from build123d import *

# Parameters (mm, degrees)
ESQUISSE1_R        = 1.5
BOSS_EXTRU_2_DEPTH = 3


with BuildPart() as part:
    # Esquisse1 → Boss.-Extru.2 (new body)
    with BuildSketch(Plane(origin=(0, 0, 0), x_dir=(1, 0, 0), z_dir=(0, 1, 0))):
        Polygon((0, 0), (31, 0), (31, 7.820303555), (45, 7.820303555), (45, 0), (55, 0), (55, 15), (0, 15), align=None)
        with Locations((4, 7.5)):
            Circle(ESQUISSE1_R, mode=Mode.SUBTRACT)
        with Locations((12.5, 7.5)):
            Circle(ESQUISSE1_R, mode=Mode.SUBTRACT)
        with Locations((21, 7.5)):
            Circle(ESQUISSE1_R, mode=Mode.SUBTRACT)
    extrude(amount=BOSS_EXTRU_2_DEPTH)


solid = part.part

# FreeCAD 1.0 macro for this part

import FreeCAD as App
import Part
import Sketcher
from FreeCAD import Vector
Q = App.Units.Quantity

doc = App.newDocument("Part")
body = doc.addObject("PartDesign::Body", "Body")

# Sketch on XZ plane
sketch1 = body.newObject("Sketcher::SketchObject", "Sketch")
sketch1.AttachmentSupport = (doc.getObject("XZ_Plane"), [""])
sketch1.MapMode = "FlatFace"
sketch1.addGeometry(Part.LineSegment(Vector(0, 0, 0), Vector(31, 0, 0)), False)
sketch1.addGeometry(Part.LineSegment(Vector(31, 0, 0), Vector(31, -7.8, 0)), False)
sketch1.addGeometry(Part.LineSegment(Vector(31, -7.8, 0), Vector(45, -7.8, 0)), False)
sketch1.addGeometry(Part.LineSegment(Vector(45, -7.8, 0), Vector(45, 0, 0)), False)
sketch1.addGeometry(Part.LineSegment(Vector(45, 0, 0), Vector(55, 0, 0)), False)
sketch1.addGeometry(Part.LineSegment(Vector(55, 0, 0), Vector(55, -15, 0)), False)
sketch1.addGeometry(Part.LineSegment(Vector(55, -15, 0), Vector(0, -15, 0)), False)
sketch1.addGeometry(Part.LineSegment(Vector(0, -15, 0), Vector(0, 0, 0)), False)
sketch1.addGeometry(Part.Circle(Vector(4, -7.5, 0), Vector(0, 0, 1), 1.5), False)
sketch1.addGeometry(Part.Circle(Vector(12.5, -7.5, 0), Vector(0, 0, 1), 1.5), False)
sketch1.addGeometry(Part.Circle(Vector(21, -7.5, 0), Vector(0, 0, 1), 1.5), False)
sketch1.addConstraint(Sketcher.Constraint("Coincident", 0, 2, 1, 1))
sketch1.addConstraint(Sketcher.Constraint("Coincident", 1, 2, 2, 1))
sketch1.addConstraint(Sketcher.Constraint("Coincident", 2, 2, 3, 1))
sketch1.addConstraint(Sketcher.Constraint("Coincident", 3, 2, 4, 1))
sketch1.addConstraint(Sketcher.Constraint("Coincident", 4, 2, 5, 1))
sketch1.addConstraint(Sketcher.Constraint("Coincident", 5, 2, 6, 1))
sketch1.addConstraint(Sketcher.Constraint("Coincident", 6, 2, 7, 1))
sketch1.addConstraint(Sketcher.Constraint("Coincident", 7, 2, 0, 1))
sketch1.addConstraint(Sketcher.Constraint("Horizontal", 0))
sketch1.addConstraint(Sketcher.Constraint("Vertical", 1))
sketch1.addConstraint(Sketcher.Constraint("Horizontal", 2))
sketch1.addConstraint(Sketcher.Constraint("Vertical", 3))
sketch1.addConstraint(Sketcher.Constraint("Horizontal", 4))
sketch1.addConstraint(Sketcher.Constraint("Vertical", 5))
sketch1.addConstraint(Sketcher.Constraint("Horizontal", 6))
sketch1.addConstraint(Sketcher.Constraint("Vertical", 7))
sketch1.addConstraint(Sketcher.Constraint("Coincident", 7, 2, -1, 1))
sketch1.addConstraint(Sketcher.Constraint("Equal", 8, 9))
sketch1.addConstraint(Sketcher.Constraint("Equal", 9, 10))
sketch1.addConstraint(Sketcher.Constraint("PointOnObject", 3, 2, -1))
sketch1.addConstraint(Sketcher.Constraint("Horizontal", 8, 3, 9, 3))
sketch1.addConstraint(Sketcher.Constraint("Horizontal", 9, 3, 10, 3))
sketch1.addConstraint(Sketcher.Constraint("Diameter", 8, Q("3 mm")))
sketch1.addConstraint(Sketcher.Constraint("DistanceX", 0, 1, 0, 2, Q("31 mm")))
sketch1.addConstraint(Sketcher.Constraint("DistanceX", 2, 1, 2, 2, Q("14 mm")))
sketch1.addConstraint(Sketcher.Constraint("DistanceX", 4, 1, 4, 2, Q("10 mm")))
sketch1.addConstraint(Sketcher.Constraint("DistanceY", 5, 2, 5, 1, Q("15 mm")))
sketch1.addConstraint(Sketcher.Constraint("DistanceX", -1, 1, 8, 3, Q("4 mm")))
sketch1.addConstraint(Sketcher.Constraint("DistanceX", -1, 1, 10, 3, Q("21 mm")))
sketch1.addConstraint(Sketcher.Constraint("DistanceY", 8, 3, -1, 1, Q("7.5 mm")))
sketch1.addConstraint(Sketcher.Constraint("DistanceX", -1, 1, 9, 3, Q("12.5 mm")))
sketch1.addConstraint(Sketcher.Constraint("DistanceY", 1, 2, 1, 1, Q("7.820304 mm")))
pad1 = body.newObject("PartDesign::Pad", "Pad")
pad1.Profile = sketch1
pad1.Length = 3
pad1.Reversed = True

doc.recompute()
